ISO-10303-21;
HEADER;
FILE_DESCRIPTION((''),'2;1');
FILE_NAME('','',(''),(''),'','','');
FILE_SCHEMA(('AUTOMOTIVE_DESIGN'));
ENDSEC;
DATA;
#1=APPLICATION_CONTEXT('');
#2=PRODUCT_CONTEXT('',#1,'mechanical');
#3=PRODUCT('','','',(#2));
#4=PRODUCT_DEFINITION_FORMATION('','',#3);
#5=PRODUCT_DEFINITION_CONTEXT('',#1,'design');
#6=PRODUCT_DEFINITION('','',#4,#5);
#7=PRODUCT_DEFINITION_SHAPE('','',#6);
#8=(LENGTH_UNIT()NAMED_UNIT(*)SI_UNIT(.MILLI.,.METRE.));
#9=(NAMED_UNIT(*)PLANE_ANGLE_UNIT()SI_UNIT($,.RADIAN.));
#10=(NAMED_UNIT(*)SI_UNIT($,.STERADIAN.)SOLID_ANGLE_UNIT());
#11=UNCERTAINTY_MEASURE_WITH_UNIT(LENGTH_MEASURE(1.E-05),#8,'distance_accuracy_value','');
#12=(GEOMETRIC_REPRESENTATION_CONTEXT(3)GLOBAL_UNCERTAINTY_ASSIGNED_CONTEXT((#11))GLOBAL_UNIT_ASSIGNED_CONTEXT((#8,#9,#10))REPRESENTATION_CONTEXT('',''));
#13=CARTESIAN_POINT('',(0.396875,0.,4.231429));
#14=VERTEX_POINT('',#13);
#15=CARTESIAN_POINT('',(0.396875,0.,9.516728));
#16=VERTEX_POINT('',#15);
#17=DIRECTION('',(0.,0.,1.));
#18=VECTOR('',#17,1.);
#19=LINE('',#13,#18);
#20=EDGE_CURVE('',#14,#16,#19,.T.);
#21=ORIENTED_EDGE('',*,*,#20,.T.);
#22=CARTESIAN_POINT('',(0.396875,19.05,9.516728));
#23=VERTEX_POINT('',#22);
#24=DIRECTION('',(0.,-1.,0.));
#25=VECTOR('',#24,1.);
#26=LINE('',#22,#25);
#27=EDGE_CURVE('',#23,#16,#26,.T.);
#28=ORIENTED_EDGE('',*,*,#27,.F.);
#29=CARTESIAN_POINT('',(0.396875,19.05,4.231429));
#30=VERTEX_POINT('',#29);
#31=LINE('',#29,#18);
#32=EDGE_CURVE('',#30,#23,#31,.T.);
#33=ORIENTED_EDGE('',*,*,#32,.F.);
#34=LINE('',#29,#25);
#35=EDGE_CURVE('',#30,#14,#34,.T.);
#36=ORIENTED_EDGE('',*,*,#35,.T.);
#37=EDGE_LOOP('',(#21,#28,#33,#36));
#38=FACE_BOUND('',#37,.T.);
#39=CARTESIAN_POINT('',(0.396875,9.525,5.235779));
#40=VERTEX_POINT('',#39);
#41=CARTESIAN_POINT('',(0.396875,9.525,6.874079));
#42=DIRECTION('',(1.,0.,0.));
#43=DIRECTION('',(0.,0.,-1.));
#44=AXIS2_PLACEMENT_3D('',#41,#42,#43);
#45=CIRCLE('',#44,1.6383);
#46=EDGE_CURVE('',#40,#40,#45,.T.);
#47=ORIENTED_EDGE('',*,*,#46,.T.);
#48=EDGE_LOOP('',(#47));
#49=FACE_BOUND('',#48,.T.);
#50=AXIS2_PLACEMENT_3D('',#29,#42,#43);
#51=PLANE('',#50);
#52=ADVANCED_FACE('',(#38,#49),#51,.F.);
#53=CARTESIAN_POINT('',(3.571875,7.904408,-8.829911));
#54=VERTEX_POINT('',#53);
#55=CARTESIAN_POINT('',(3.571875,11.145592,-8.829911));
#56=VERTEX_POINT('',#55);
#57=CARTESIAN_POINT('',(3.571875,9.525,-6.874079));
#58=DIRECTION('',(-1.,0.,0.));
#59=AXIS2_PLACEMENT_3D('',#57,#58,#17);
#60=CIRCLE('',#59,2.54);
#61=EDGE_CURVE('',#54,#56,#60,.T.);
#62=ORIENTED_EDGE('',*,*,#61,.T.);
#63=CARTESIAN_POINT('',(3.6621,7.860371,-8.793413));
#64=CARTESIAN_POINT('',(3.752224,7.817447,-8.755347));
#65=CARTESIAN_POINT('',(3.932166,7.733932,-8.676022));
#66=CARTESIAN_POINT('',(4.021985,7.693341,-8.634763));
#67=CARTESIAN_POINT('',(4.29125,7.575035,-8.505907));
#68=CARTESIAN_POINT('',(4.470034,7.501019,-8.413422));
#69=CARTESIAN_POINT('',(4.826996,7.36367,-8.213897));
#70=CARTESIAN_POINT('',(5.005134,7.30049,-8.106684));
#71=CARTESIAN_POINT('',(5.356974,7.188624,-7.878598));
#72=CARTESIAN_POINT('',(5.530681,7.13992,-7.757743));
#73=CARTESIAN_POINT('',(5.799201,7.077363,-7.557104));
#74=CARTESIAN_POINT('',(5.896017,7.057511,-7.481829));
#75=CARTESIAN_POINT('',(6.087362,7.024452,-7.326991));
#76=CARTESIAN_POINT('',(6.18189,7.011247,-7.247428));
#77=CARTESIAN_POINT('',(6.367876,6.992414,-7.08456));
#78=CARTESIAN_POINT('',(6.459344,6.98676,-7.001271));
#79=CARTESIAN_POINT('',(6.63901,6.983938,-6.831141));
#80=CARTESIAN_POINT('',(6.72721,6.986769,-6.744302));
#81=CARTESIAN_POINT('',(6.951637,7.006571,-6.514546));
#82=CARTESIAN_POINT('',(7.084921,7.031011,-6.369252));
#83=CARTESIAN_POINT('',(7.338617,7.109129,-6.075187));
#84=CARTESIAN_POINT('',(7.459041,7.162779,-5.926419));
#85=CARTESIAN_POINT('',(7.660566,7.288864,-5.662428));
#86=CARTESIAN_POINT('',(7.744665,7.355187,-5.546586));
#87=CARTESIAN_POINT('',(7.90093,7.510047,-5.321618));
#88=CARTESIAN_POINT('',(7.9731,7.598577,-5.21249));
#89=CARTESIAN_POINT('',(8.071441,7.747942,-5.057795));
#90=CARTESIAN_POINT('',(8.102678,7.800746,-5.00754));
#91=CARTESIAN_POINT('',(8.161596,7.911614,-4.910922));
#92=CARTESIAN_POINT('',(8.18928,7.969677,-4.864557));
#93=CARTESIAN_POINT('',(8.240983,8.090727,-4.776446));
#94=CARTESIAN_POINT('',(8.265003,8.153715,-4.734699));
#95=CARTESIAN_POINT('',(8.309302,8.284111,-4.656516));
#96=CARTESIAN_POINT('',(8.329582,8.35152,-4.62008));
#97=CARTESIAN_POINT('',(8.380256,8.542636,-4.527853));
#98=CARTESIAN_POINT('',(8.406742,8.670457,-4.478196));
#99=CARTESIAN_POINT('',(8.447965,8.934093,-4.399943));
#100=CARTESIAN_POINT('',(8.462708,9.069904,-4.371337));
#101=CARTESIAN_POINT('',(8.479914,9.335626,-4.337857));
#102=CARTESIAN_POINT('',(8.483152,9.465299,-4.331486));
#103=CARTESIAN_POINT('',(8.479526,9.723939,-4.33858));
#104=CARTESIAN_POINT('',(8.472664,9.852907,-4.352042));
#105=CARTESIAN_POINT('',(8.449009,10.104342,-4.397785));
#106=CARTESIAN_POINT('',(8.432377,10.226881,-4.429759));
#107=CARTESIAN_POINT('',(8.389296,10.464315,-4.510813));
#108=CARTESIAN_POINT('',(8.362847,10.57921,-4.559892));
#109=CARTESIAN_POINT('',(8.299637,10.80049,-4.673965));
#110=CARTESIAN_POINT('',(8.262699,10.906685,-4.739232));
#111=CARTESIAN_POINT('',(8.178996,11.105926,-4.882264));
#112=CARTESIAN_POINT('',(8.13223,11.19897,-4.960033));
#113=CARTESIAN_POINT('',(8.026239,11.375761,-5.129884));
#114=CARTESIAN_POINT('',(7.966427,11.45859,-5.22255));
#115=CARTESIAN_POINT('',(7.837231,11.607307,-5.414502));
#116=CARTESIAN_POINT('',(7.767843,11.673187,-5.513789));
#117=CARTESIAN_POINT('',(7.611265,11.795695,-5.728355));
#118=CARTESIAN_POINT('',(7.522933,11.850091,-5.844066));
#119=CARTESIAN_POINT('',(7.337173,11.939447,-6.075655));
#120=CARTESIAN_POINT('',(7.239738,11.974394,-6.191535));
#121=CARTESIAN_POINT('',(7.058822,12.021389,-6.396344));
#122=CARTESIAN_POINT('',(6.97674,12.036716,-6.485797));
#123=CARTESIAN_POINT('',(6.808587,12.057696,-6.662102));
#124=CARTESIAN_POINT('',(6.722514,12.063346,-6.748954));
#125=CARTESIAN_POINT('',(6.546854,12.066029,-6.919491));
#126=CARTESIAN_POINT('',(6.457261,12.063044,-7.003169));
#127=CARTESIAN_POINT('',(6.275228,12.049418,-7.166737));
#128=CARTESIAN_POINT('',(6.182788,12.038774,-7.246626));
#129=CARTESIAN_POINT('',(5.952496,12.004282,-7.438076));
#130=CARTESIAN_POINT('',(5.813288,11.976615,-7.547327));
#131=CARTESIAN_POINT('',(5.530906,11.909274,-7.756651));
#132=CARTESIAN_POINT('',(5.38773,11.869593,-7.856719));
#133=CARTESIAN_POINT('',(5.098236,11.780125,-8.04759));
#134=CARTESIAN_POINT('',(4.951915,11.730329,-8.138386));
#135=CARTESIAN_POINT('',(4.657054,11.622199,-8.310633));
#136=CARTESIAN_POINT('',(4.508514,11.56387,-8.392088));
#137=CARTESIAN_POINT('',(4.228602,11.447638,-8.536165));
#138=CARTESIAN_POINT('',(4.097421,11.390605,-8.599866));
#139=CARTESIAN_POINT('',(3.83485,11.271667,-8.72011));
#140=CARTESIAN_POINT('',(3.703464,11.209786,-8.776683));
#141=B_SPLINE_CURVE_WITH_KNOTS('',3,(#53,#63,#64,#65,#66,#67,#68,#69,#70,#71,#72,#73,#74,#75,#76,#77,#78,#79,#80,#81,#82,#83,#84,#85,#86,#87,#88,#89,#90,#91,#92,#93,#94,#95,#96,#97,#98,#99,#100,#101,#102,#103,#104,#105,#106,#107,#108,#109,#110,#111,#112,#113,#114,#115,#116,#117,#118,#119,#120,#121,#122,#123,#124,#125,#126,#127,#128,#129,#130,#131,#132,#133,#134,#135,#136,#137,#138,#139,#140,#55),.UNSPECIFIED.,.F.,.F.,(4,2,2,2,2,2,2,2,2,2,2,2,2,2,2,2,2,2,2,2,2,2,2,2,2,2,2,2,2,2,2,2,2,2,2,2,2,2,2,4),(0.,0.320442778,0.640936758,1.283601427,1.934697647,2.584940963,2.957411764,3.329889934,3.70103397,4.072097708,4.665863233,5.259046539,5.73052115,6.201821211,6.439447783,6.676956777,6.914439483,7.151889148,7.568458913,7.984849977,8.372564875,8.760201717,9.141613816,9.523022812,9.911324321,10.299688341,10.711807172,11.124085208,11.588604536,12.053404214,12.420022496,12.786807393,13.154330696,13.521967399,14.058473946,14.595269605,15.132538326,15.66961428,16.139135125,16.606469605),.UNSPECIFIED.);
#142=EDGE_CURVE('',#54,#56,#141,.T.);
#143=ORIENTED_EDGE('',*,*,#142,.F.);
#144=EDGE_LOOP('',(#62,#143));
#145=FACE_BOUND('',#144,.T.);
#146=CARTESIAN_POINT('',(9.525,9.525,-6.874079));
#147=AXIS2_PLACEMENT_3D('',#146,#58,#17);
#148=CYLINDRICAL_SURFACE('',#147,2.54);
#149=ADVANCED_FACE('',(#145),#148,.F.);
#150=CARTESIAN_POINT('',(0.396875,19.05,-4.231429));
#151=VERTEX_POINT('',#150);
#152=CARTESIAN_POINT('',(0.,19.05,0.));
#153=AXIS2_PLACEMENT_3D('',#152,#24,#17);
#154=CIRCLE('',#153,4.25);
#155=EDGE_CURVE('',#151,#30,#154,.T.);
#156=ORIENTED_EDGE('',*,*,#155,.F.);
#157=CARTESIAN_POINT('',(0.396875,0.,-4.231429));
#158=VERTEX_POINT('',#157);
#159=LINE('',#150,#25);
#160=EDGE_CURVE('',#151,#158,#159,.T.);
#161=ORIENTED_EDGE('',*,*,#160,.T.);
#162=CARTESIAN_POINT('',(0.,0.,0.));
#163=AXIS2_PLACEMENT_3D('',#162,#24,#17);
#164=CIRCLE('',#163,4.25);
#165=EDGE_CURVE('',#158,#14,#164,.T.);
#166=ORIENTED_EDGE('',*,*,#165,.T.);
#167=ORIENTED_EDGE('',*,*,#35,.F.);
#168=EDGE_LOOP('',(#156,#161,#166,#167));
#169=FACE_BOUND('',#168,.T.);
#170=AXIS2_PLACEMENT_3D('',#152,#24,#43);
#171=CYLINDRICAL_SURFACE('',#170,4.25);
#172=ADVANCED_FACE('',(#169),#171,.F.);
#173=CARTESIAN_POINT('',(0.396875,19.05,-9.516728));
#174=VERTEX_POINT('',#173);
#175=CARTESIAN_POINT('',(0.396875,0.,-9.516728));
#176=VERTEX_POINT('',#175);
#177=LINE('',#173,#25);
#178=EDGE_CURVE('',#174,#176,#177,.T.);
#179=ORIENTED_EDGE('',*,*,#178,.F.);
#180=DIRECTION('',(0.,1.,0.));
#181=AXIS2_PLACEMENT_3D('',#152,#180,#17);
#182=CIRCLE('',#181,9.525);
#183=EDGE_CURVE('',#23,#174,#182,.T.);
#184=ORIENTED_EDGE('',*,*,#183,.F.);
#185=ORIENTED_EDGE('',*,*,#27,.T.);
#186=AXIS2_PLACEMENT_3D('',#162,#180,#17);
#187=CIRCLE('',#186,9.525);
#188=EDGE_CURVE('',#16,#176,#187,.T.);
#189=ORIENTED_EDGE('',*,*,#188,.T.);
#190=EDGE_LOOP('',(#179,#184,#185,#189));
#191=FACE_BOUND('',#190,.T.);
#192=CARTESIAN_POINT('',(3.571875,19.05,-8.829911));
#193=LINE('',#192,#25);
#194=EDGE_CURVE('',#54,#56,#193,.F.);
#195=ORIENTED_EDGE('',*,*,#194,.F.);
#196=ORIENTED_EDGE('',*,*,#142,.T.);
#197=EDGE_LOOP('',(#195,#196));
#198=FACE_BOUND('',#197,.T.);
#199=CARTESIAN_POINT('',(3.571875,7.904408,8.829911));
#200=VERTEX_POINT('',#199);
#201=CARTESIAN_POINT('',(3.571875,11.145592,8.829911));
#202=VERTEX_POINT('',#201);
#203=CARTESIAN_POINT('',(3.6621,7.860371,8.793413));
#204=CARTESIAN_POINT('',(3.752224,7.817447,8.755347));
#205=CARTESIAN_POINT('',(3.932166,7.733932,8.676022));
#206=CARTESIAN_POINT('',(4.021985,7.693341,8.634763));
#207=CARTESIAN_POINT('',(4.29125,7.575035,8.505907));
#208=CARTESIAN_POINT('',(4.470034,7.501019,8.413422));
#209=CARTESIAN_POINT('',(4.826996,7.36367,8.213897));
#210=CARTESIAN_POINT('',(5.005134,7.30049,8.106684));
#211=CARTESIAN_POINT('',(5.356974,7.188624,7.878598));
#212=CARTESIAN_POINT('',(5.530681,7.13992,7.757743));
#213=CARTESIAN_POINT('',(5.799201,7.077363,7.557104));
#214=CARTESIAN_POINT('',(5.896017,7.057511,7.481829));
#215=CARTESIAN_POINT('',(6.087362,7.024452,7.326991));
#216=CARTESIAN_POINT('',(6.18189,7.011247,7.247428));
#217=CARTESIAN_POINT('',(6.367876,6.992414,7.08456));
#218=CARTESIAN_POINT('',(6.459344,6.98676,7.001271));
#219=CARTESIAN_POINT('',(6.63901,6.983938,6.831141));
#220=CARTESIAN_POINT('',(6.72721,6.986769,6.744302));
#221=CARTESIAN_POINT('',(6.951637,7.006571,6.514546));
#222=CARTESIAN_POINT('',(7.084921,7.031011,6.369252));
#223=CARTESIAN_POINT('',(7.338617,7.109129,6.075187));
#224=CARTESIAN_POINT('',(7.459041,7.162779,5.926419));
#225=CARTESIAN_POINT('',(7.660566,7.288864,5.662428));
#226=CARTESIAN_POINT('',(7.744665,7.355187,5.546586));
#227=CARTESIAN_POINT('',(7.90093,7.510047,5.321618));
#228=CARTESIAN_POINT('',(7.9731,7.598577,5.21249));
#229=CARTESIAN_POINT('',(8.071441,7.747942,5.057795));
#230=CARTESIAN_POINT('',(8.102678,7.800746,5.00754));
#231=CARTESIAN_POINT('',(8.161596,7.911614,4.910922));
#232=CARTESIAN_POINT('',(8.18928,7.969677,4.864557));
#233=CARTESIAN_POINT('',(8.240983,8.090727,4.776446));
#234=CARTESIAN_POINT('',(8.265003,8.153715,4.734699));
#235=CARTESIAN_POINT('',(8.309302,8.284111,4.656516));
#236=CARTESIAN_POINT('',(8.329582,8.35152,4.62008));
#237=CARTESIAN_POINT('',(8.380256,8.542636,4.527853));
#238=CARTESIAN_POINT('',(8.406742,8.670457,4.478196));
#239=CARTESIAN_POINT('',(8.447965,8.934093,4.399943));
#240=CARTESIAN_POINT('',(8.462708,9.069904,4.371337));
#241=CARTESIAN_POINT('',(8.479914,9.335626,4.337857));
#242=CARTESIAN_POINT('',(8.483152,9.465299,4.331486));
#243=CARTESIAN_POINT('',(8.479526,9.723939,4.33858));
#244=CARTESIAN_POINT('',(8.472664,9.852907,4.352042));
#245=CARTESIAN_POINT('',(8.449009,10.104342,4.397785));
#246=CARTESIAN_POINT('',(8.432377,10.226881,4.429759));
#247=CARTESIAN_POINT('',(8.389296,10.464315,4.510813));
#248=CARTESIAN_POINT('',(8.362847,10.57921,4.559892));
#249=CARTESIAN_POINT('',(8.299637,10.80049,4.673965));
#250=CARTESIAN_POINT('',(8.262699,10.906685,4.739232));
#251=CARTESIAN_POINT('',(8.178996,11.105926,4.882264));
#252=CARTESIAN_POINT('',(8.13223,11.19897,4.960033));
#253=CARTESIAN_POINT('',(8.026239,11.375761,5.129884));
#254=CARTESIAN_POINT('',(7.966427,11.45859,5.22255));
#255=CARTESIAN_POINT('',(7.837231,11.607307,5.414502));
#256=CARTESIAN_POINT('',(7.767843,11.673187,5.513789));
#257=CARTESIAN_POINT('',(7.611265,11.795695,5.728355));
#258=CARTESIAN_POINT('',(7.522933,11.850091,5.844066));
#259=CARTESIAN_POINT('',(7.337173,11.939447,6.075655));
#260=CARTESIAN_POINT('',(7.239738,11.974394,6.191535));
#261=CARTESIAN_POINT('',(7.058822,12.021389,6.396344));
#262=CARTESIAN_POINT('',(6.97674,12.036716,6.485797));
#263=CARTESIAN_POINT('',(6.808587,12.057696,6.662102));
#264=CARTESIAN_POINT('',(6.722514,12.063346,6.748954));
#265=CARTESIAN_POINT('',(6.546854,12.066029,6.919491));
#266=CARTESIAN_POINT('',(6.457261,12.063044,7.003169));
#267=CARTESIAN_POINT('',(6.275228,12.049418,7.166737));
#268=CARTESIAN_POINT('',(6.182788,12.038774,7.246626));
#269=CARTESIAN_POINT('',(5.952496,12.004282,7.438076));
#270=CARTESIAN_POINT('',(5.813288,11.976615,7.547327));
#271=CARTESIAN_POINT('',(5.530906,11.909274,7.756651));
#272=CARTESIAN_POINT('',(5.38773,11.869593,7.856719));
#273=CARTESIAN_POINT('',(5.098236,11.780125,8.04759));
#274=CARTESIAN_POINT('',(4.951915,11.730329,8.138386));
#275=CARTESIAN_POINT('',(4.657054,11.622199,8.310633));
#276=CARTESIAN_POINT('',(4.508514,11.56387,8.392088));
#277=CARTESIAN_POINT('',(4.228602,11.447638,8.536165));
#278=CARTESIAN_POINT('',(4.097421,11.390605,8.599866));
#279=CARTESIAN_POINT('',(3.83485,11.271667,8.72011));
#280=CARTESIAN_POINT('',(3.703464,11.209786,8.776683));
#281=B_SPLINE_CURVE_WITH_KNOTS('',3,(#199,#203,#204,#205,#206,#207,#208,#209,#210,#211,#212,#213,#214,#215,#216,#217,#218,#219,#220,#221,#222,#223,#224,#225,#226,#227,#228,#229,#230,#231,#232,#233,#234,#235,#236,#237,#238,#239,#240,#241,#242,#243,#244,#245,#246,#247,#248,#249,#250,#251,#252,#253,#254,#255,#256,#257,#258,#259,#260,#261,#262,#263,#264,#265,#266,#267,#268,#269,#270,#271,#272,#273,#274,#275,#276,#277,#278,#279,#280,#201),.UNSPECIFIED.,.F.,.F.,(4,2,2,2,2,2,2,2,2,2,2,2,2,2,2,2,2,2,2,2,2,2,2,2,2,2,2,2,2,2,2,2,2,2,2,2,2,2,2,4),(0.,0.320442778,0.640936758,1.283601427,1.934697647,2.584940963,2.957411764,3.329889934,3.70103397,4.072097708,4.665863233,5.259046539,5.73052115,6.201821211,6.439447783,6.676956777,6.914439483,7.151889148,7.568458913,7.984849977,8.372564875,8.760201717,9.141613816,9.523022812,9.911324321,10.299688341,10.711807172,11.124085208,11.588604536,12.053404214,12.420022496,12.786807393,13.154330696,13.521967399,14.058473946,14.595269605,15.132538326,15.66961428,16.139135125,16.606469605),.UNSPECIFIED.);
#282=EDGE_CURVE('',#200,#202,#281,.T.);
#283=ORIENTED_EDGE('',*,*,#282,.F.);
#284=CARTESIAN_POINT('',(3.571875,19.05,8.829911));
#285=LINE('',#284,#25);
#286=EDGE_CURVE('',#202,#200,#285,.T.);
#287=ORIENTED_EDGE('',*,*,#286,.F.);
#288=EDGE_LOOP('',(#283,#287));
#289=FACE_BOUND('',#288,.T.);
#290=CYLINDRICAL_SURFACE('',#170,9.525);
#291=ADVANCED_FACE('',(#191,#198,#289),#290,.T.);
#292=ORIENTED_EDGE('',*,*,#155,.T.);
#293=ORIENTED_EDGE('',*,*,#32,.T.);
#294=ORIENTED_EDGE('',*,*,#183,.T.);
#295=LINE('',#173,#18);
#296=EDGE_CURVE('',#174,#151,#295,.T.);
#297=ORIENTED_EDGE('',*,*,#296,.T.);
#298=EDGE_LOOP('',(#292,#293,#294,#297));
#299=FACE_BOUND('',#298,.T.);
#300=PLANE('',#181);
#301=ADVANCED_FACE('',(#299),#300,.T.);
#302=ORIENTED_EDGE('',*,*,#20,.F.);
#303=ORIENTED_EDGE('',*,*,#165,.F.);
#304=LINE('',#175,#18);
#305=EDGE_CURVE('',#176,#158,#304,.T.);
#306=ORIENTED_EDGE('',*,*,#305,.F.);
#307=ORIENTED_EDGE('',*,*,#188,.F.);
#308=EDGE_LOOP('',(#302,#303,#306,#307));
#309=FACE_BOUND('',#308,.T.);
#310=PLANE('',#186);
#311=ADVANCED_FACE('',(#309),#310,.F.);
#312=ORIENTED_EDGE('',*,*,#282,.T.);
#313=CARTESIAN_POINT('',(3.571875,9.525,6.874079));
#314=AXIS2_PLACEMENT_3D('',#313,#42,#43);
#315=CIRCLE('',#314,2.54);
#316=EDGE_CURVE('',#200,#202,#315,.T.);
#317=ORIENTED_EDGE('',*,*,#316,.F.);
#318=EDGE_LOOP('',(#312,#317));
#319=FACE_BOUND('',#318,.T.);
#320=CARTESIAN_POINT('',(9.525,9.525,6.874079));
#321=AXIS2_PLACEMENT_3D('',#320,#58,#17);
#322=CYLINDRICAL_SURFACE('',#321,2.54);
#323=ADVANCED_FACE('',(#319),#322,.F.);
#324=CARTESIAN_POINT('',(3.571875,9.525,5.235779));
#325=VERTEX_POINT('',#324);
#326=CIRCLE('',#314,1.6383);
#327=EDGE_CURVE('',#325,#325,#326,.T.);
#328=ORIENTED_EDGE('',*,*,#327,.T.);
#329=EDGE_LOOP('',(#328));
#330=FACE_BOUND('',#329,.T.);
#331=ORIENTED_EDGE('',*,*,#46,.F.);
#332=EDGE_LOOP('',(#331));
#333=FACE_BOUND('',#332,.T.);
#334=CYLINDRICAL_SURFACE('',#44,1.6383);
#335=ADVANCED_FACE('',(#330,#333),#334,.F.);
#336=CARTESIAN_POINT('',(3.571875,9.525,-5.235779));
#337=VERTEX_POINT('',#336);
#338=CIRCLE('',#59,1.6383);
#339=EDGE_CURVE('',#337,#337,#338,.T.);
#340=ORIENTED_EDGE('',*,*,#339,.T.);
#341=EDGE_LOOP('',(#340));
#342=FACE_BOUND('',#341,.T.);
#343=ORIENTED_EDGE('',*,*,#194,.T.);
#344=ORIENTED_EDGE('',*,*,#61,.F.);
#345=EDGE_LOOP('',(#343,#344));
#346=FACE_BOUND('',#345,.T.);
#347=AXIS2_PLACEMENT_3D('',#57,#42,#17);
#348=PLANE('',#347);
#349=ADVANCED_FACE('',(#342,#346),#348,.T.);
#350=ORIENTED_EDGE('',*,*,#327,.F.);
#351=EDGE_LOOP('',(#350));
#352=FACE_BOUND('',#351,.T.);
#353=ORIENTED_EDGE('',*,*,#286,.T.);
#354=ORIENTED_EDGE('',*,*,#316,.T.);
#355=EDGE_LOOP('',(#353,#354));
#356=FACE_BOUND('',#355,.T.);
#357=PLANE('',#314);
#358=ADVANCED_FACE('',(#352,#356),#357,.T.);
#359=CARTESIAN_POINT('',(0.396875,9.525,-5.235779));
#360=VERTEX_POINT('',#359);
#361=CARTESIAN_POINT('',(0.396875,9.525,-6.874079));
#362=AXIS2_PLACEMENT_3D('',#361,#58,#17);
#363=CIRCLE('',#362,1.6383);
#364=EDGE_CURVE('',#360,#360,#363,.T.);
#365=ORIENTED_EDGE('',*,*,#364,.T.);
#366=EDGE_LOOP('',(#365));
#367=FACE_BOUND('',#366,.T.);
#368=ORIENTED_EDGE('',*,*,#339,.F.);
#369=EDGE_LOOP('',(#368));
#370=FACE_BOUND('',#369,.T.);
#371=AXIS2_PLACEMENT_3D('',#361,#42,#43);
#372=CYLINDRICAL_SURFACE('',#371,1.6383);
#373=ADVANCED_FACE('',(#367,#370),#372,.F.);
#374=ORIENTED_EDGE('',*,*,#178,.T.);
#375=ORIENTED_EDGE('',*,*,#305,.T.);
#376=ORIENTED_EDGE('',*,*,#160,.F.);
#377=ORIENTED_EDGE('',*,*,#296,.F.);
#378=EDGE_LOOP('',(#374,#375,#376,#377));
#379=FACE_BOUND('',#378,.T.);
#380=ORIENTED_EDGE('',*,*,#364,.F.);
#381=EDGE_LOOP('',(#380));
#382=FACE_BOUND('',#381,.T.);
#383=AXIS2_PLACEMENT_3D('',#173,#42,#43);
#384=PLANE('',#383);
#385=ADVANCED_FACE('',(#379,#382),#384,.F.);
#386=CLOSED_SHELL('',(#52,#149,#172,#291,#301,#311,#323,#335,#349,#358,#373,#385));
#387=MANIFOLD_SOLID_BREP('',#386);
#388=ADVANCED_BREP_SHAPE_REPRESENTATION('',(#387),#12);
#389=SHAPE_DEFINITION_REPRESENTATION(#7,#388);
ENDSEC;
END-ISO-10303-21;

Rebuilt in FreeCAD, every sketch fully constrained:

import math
import FreeCAD as App
import Part
import Sketcher
Q = App.Units.Quantity

doc = App.newDocument("Part")
body = doc.addObject("PartDesign::Body", "Body")

sketch1 = body.newObject("Sketcher::SketchObject", "Sketch")
sketch1.AttachmentSupport = (doc.getObject("XZ_Plane"), [""])
sketch1.MapMode = "FlatFace"
sketch1.addGeometry(Part.LineSegment(App.Vector(0.4, -9.5, 0), App.Vector(0.4, -4.2, 0)), False)
sketch1.addGeometry(Part.ArcOfCircle(Part.Circle(App.Vector(0, 0, 0), App.Vector(0, 0, 1), 4.2), math.radians(-85), math.radians(85)), False)
sketch1.addGeometry(Part.LineSegment(App.Vector(0.4, 4.2, 0), App.Vector(0.4, 9.5, 0)), False)
sketch1.addGeometry(Part.ArcOfCircle(Part.Circle(App.Vector(0, 0, 0), App.Vector(0, 0, 1), 9.5), math.radians(-88), math.radians(88)), False)
sketch1.addConstraint(Sketcher.Constraint("Coincident", 0, 2, 1, 1))
sketch1.addConstraint(Sketcher.Constraint("Coincident", 1, 2, 2, 1))
sketch1.addConstraint(Sketcher.Constraint("Coincident", 2, 2, 3, 2))
sketch1.addConstraint(Sketcher.Constraint("Coincident", 3, 1, 0, 1))
sketch1.addConstraint(Sketcher.Constraint("Vertical", 0))
sketch1.addConstraint(Sketcher.Constraint("Vertical", 2))
sketch1.addConstraint(Sketcher.Constraint("Coincident", 1, 3, -1, 1))
sketch1.addConstraint(Sketcher.Constraint("Coincident", 3, 3, -1, 1))
sketch1.addConstraint(Sketcher.Constraint("Vertical", 0, 2, 1, 2))
sketch1.addConstraint(Sketcher.Constraint("Radius", 3, Q("0.375 in")))
sketch1.addConstraint(Sketcher.Constraint("Radius", 1, 4.25))
sketch1.addConstraint(Sketcher.Constraint("DistanceX", -1, 1, 0, 2, Q("0.015625 in")))
pad1 = body.newObject("PartDesign::Pad", "Pad")
pad1.Profile = sketch1
pad1.Length = Q("0.75 in")
pad1.Reversed = True

sketch2 = body.newObject("Sketcher::SketchObject", "Sketch001")
sketch2.AttachmentSupport = (doc.getObject("YZ_Plane"), [""])
sketch2.MapMode = "FlatFace"
sketch2.AttachmentOffset = App.Placement(App.Vector(0, 0, 0.140625 * 25.4), App.Rotation())
sketch2.addGeometry(Part.Circle(App.Vector(9.5, 6.9, 0), App.Vector(0, 0, 1), 1.6), False)
sketch2.addConstraint(Sketcher.Constraint("Diameter", 0, Q("0.129 in")))
sketch2.addConstraint(Sketcher.Constraint("DistanceX", -1, 1, 0, 3, Q("0.375 in")))
sketch2.addConstraint(Sketcher.Constraint("DistanceY", -1, 1, 0, 3, 6.874079))
pocket1 = body.newObject("PartDesign::Pocket", "Pocket")
pocket1.Profile = sketch2
pocket1.Type = "ThroughAll"

sketch3 = body.newObject("Sketcher::SketchObject", "Sketch002")
sketch3.AttachmentSupport = (doc.getObject("YZ_Plane"), [""])
sketch3.MapMode = "FlatFace"
sketch3.AttachmentOffset = App.Placement(App.Vector(0, 0, 0.140625 * 25.4), App.Rotation())
sketch3.addGeometry(Part.Circle(App.Vector(9.5, 6.9, 0), App.Vector(0, 0, 1), 2.5), False)
sketch3.addConstraint(Sketcher.Constraint("Diameter", 0, Q("0.2 in")))
sketch3.addConstraint(Sketcher.Constraint("DistanceX", -1, 1, 0, 3, Q("0.375 in")))
sketch3.addConstraint(Sketcher.Constraint("DistanceY", -1, 1, 0, 3, 6.874079))
pocket2 = body.newObject("PartDesign::Pocket", "Pocket001")
pocket2.Profile = sketch3
pocket2.Type = "ThroughAll"
pocket2.Reversed = True
doc.recompute()

mirrored = body.newObject("PartDesign::Mirrored", "Mirrored")
mirrored.Originals = [pocket1, pocket2]
mirrored.MirrorPlane = (doc.getObject("XY_Plane"), [""])
body.Tip = mirrored

doc.recompute()
